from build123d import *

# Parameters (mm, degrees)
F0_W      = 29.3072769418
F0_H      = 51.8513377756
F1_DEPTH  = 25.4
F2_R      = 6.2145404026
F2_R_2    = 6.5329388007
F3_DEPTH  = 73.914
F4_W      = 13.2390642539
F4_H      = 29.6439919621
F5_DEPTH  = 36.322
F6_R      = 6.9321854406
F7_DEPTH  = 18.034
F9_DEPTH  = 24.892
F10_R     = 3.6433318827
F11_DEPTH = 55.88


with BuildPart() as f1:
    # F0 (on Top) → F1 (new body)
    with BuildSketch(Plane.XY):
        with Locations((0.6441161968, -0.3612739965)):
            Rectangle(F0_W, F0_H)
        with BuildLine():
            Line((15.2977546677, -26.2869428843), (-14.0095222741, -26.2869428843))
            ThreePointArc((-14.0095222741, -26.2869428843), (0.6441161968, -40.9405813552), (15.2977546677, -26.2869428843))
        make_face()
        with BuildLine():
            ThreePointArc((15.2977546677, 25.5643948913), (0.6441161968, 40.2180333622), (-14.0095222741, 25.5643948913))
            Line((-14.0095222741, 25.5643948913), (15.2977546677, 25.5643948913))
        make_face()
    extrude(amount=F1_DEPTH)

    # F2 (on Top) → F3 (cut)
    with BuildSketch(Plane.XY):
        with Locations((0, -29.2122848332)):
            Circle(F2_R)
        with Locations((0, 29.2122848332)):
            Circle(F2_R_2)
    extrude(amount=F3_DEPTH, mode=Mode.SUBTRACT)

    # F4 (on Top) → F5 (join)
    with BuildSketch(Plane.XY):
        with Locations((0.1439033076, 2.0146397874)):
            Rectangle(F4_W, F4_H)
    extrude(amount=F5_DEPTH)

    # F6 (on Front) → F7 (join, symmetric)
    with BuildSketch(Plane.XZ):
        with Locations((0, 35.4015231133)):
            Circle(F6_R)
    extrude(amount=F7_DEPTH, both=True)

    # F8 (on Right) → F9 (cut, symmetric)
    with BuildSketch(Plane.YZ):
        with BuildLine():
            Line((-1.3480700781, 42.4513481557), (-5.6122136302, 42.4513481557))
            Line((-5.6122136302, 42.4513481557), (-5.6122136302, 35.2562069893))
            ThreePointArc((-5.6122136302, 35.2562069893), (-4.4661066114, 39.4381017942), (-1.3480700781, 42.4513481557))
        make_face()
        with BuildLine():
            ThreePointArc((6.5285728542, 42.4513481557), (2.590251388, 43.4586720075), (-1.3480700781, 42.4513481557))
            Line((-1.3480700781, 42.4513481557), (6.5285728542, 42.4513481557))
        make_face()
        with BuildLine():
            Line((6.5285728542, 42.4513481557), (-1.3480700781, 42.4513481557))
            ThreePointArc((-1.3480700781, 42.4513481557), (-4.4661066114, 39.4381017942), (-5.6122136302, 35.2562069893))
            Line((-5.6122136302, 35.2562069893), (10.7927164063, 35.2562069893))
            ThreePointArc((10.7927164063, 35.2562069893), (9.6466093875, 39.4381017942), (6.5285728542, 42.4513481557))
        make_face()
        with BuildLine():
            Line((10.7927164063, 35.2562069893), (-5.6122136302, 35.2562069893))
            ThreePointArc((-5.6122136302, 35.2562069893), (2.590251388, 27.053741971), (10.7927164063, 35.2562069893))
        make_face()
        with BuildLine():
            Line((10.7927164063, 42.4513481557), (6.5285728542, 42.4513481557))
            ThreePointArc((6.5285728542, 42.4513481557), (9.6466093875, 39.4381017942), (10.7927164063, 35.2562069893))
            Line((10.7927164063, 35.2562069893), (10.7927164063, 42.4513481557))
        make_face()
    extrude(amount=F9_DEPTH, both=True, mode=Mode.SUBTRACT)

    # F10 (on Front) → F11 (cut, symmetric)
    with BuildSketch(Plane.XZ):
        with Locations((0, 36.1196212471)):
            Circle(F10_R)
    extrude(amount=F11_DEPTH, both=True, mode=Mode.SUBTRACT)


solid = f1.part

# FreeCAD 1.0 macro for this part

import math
import FreeCAD as App
import Part
import Sketcher

V = App.Vector
Q = App.Units.Quantity

doc = App.newDocument("Part")
body = doc.addObject("PartDesign::Body", "Body")

# Sketch on XY plane
sketch1 = body.newObject("Sketcher::SketchObject", "Sketch")
sketch1.AttachmentSupport = (doc.getObject("XY_Plane"), [""])
sketch1.MapMode = "FlatFace"
sketch1.addGeometry([
    Part.LineSegment(V(-14, 26, 0), V(-14, -26, 0)),
    Part.ArcOfCircle(Part.Circle(V(1, -26, 0), V(0, 0, 1), 15), math.radians(180), math.radians(360)),
    Part.LineSegment(V(15, -26, 0), V(15, 26, 0)),
    Part.ArcOfCircle(Part.Circle(V(1, 26, 0), V(0, 0, 1), 15), math.radians(0), math.radians(180)),
], False)
sketch1.addConstraint([
    Sketcher.Constraint("Tangent", 0, 2, 1, 1),
    Sketcher.Constraint("Tangent", 1, 2, 2, 1),
    Sketcher.Constraint("Tangent", 2, 2, 3, 1),
    Sketcher.Constraint("Tangent", 3, 2, 0, 1),
    Sketcher.Constraint("Vertical", 0),
    Sketcher.Constraint("Vertical", 2),
    Sketcher.Constraint("Radius", 1, Q("14.653638 mm")),
    Sketcher.Constraint("DistanceY", 0, 2, 0, 1, Q("51.851338 mm")),
    Sketcher.Constraint("DistanceX", -1, 1, 1, 3, Q("0.644116 mm")),
    Sketcher.Constraint("DistanceY", 1, 3, -1, 1, Q("26.286943 mm")),
])
pad1 = body.newObject("PartDesign::Pad", "Pad")
pad1.Profile = sketch1
pad1.Length = Q("1 in")

# Sketch on XY plane
sketch2 = body.newObject("Sketcher::SketchObject", "Sketch001")
sketch2.AttachmentSupport = (doc.getObject("XY_Plane"), [""])
sketch2.MapMode = "FlatFace"
sketch2.addGeometry([
    Part.Circle(V(0, -29, 0), V(0, 0, 1), 6),
    Part.Circle(V(0, 29, 0), V(0, 0, 1), 7),
], False)
sketch2.addConstraint([
    Sketcher.Constraint("Symmetric", 0, 3, 1, 3, -1, 1),
    Sketcher.Constraint("PointOnObject", 0, 3, -2),
    Sketcher.Constraint("Diameter", 0, Q("12.429081 mm")),
    Sketcher.Constraint("Diameter", 1, Q("13.065878 mm")),
    Sketcher.Constraint("DistanceY", 0, 3, 1, 3, Q("58.42457 mm")),
])
pocket1 = body.newObject("PartDesign::Pocket", "Pocket")
pocket1.Profile = sketch2
pocket1.Length = Q("2.91 in")
pocket1.Reversed = True

# Sketch on XY plane
sketch3 = body.newObject("Sketcher::SketchObject", "Sketch002")
sketch3.AttachmentSupport = (doc.getObject("XY_Plane"), [""])
sketch3.MapMode = "FlatFace"
sketch3.addGeometry([
    Part.LineSegment(V(-6, 17, 0), V(-6, -13, 0)),
    Part.LineSegment(V(-6, -13, 0), V(7, -13, 0)),
    Part.LineSegment(V(7, -13, 0), V(7, 17, 0)),
    Part.LineSegment(V(7, 17, 0), V(-6, 17, 0)),
], False)
sketch3.addConstraint([
    Sketcher.Constraint("Coincident", 0, 2, 1, 1),
    Sketcher.Constraint("Coincident", 1, 2, 2, 1),
    Sketcher.Constraint("Coincident", 2, 2, 3, 1),
    Sketcher.Constraint("Coincident", 3, 2, 0, 1),
    Sketcher.Constraint("Vertical", 0),
    Sketcher.Constraint("Horizontal", 1),
    Sketcher.Constraint("Vertical", 2),
    Sketcher.Constraint("Horizontal", 3),
    Sketcher.Constraint("DistanceY", 0, 2, 0, 1, Q("29.643992 mm")),
    Sketcher.Constraint("DistanceX", 1, 1, 1, 2, Q("13.239064 mm")),
    Sketcher.Constraint("DistanceX", 0, 2, -1, 1, Q("6.475629 mm")),
    Sketcher.Constraint("DistanceY", 0, 2, -1, 1, Q("12.807356 mm")),
])
pad2 = body.newObject("PartDesign::Pad", "Pad001")
pad2.Profile = sketch3
pad2.Length = Q("1.43 in")

# Sketch on XZ plane
sketch4 = body.newObject("Sketcher::SketchObject", "Sketch003")
sketch4.AttachmentSupport = (doc.getObject("XZ_Plane"), [""])
sketch4.MapMode = "FlatFace"
sketch4.addGeometry(Part.Circle(V(0, 35, 0), V(0, 0, 1), 7), False)
sketch4.addConstraint([
    Sketcher.Constraint("PointOnObject", 0, 3, -2),
    Sketcher.Constraint("Diameter", 0, Q("13.864371 mm")),
    Sketcher.Constraint("DistanceY", -1, 1, 0, 3, Q("35.401523 mm")),
])
pad3 = body.newObject("PartDesign::Pad", "Pad002")
pad3.Profile = sketch4
pad3.Length = Q("1.42 in")
pad3.Midplane = True

# Sketch on YZ plane
sketch5 = body.newObject("Sketcher::SketchObject", "Sketch004")
sketch5.AttachmentSupport = (doc.getObject("YZ_Plane"), [""])
sketch5.MapMode = "FlatFace"
sketch5.addGeometry([
    Part.LineSegment(V(-1.3, 42.5, 0), V(-5.6, 42.5, 0)),  # 0
    Part.LineSegment(V(-5.6, 42.5, 0), V(-5.6, 35.3, 0)),  # 1
    Part.ArcOfCircle(Part.Circle(V(2.6, 35.3, 0), V(0, 0, 1), 8.2), math.radians(180), math.radians(360)),  # 2
    Part.LineSegment(V(10.8, 35.3, 0), V(10.8, 42.5, 0)),  # 3
    Part.LineSegment(V(10.8, 42.5, 0), V(6.5, 42.5, 0)),  # 4
    Part.ArcOfCircle(Part.Circle(V(2.6, 35.3, 0), V(0, 0, 1), 8.2), math.radians(61), math.radians(119)),  # 5
], False)
sketch5.addConstraint([
    Sketcher.Constraint("Coincident", 0, 2, 1, 1),
    Sketcher.Constraint("Tangent", 1, 2, 2, 1),
    Sketcher.Constraint("Tangent", 2, 2, 3, 1),
    Sketcher.Constraint("Coincident", 3, 2, 4, 1),
    Sketcher.Constraint("Coincident", 4, 2, 5, 1),
    Sketcher.Constraint("Coincident", 5, 2, 0, 1),
    Sketcher.Constraint("Horizontal", 0),
    Sketcher.Constraint("Vertical", 1),
    Sketcher.Constraint("Vertical", 3),
    Sketcher.Constraint("Horizontal", 4),
    Sketcher.Constraint("Coincident", 5, 3, 2, 3),
    Sketcher.Constraint("Equal", 2, 5),
    Sketcher.Constraint("Horizontal", 0, 2, 3, 2),
    Sketcher.Constraint("Radius", 2, Q("8.202465 mm")),
    Sketcher.Constraint("DistanceY", 1, 2, 1, 1, Q("7.195141 mm")),
    Sketcher.Constraint("DistanceX", -1, 1, 2, 3, Q("2.590251 mm")),
    Sketcher.Constraint("DistanceY", -1, 1, 0, 2, Q("42.451348 mm")),
])
pocket2 = body.newObject("PartDesign::Pocket", "Pocket001")
pocket2.Profile = sketch5
pocket2.Length = Q("1.96 in")
pocket2.Midplane = True

# Sketch on XZ plane
sketch6 = body.newObject("Sketcher::SketchObject", "Sketch005")
sketch6.AttachmentSupport = (doc.getObject("XZ_Plane"), [""])
sketch6.MapMode = "FlatFace"
sketch6.addGeometry(Part.Circle(V(0, 36.1, 0), V(0, 0, 1), 3.6), False)
sketch6.addConstraint([
    Sketcher.Constraint("PointOnObject", 0, 3, -2),
    Sketcher.Constraint("Diameter", 0, Q("7.286664 mm")),
    Sketcher.Constraint("DistanceY", -1, 1, 0, 3, Q("36.119621 mm")),
])
pocket3 = body.newObject("PartDesign::Pocket", "Pocket002")
pocket3.Profile = sketch6
pocket3.Length = Q("4.4 in")
pocket3.Midplane = True

doc.recompute()
